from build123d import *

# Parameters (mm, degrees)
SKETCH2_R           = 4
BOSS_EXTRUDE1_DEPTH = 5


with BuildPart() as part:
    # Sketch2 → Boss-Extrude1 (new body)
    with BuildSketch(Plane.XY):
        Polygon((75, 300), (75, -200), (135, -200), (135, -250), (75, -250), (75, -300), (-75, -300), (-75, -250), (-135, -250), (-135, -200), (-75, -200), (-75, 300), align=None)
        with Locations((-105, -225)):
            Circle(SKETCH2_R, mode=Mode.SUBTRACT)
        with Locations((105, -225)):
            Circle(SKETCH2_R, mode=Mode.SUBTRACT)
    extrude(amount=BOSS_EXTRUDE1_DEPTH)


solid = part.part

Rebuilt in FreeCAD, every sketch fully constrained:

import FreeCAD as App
import Part
import Sketcher

V = App.Vector


def add_polygon(sketch, points):
    """Adds a closed chain of lines whose ends are joined by coincident constraints."""
    first, n = sketch.GeometryCount, len(points)
    for a, b in zip(points, points[1:] + points[:1]):
        sketch.addGeometry(Part.LineSegment(App.Vector(*a, 0), App.Vector(*b, 0)), False)
    for i in range(n):
        sketch.addConstraint(Sketcher.Constraint("Coincident", first + i, 2, first + (i + 1) % n, 1))

doc = App.newDocument("Part")
body = doc.addObject("PartDesign::Body", "Body")

# Sketch on XY plane
sketch1 = body.newObject("Sketcher::SketchObject", "Sketch")
sketch1.AttachmentSupport = (doc.getObject("XY_Plane"), [""])
sketch1.MapMode = "FlatFace"
add_polygon(sketch1, [(75, -200), (75, 300), (-75, 300), (-75, -200), (-135, -200), (-135, -250), (-75, -250), (-75, -300), (75, -300), (75, -250), (135, -250), (135, -200)])  # lines 0-11
sketch1.addGeometry(Part.Circle(V(105, -225, 0), V(0, 0, 1), 4), False)  # 12
sketch1.addGeometry(Part.Circle(V(-105, -225, 0), V(0, 0, 1), 4), False)  # 13
sketch1.addConstraint([
    Sketcher.Constraint("Vertical", 0),
    Sketcher.Constraint("Horizontal", 1),
    Sketcher.Constraint("Vertical", 2),
    Sketcher.Constraint("Horizontal", 3),
    Sketcher.Constraint("Vertical", 4),
    Sketcher.Constraint("Horizontal", 5),
    Sketcher.Constraint("Vertical", 6),
    Sketcher.Constraint("Horizontal", 7),
    Sketcher.Constraint("Vertical", 8),
    Sketcher.Constraint("Horizontal", 9),
    Sketcher.Constraint("Vertical", 10),
    Sketcher.Constraint("Horizontal", 11),
    Sketcher.Constraint("Equal", 12, 13),
    Sketcher.Constraint("Symmetric", 0, 2, 6, 2, -1, 1),
    Sketcher.Constraint("Symmetric", 12, 3, 13, 3, -2),
    Sketcher.Constraint("Symmetric", 5, 2, 8, 2, -2),
    Sketcher.Constraint("Symmetric", 3, 2, 10, 2, -2),
    Sketcher.Constraint("Vertical", 2, 2, 5, 2),
    Sketcher.Constraint("Equal", 4, 6),
    Sketcher.Constraint("Diameter", 12, 8.0),
    Sketcher.Constraint("DistanceX", 1, 2, 1, 1, 150.0),
    Sketcher.Constraint("DistanceX", 3, 2, 3, 1, 60.0),
    Sketcher.Constraint("DistanceY", 0, 1, 0, 2, 500.0),
    Sketcher.Constraint("DistanceY", 4, 2, 4, 1, 50.0),
    Sketcher.Constraint("DistanceX", -1, 1, 12, 3, 105.0),
    Sketcher.Constraint("DistanceY", 12, 3, -1, 1, 225.0),
])
pad1 = body.newObject("PartDesign::Pad", "Pad")
pad1.Profile = sketch1
pad1.Length = 5

doc.recompute()
